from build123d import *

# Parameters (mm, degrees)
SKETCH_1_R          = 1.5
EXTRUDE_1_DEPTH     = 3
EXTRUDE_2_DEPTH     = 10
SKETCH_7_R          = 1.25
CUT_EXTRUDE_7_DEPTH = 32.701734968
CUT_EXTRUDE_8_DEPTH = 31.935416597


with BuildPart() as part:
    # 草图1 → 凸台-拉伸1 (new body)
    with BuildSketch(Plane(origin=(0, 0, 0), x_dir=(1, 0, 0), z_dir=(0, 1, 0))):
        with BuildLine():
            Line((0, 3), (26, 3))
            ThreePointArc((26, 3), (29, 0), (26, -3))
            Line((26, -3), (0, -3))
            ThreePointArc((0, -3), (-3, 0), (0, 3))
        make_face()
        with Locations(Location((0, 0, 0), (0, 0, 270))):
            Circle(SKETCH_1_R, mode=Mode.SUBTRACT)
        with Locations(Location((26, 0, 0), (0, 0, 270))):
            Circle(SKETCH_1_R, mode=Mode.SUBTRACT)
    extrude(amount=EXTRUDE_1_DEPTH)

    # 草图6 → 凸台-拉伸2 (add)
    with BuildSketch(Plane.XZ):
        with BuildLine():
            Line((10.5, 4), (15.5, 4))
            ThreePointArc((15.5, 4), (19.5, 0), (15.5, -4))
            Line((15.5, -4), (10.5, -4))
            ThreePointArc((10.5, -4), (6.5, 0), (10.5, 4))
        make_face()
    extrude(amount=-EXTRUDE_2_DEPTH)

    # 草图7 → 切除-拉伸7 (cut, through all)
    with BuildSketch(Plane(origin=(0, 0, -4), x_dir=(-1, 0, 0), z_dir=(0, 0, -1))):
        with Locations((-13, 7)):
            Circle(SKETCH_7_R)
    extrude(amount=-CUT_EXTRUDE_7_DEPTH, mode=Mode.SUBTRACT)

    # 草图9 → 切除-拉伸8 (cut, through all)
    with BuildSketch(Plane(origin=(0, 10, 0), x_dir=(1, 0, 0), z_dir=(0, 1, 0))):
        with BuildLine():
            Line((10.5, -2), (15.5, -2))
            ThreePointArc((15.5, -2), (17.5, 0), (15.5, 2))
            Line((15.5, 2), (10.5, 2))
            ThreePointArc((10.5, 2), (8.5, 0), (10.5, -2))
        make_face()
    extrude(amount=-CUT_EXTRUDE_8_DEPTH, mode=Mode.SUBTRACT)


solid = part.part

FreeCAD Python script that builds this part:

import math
import FreeCAD as App
import Part
import Sketcher

V = App.Vector

doc = App.newDocument("Part")
body = doc.addObject("PartDesign::Body", "Body")

sketch1 = doc.addObject("Sketcher::SketchObject", "Sketch")
body.addObject(sketch1)
sketch1.AttachmentSupport = (doc.XZ_Plane, [""])
sketch1.MapMode = "FlatFace"
sketch1.addGeometry(Part.LineSegment(V(26, -3, 0), V(0, -3, 0)), False)
sketch1.addGeometry(Part.ArcOfCircle(Part.Circle(V(0, 0, 0), V(0, 0, 1), 3), math.radians(90), math.radians(270)), False)
sketch1.addGeometry(Part.LineSegment(V(0, 3, 0), V(26, 3, 0)), False)
sketch1.addGeometry(Part.ArcOfCircle(Part.Circle(V(26, 0, 0), V(0, 0, 1), 3), math.radians(-90), math.radians(90)), False)
sketch1.addGeometry(Part.Circle(V(26, 0, 0), V(0, 0, 1), 1.5), False)
sketch1.addGeometry(Part.Circle(V(0, 0, 0), V(0, 0, 1), 1.5), False)
sketch1.addConstraint(Sketcher.Constraint("Tangent", 0, 2, 1, 2))
sketch1.addConstraint(Sketcher.Constraint("Tangent", 1, 1, 2, 1))
sketch1.addConstraint(Sketcher.Constraint("Tangent", 2, 2, 3, 2))
sketch1.addConstraint(Sketcher.Constraint("Tangent", 3, 1, 0, 1))
sketch1.addConstraint(Sketcher.Constraint("Horizontal", 0))
sketch1.addConstraint(Sketcher.Constraint("Horizontal", 2))
sketch1.addConstraint(Sketcher.Constraint("Coincident", 1, 3, -1, 1))
sketch1.addConstraint(Sketcher.Constraint("Coincident", 5, 3, -1, 1))
sketch1.addConstraint(Sketcher.Constraint("Coincident", 4, 3, 3, 3))
sketch1.addConstraint(Sketcher.Constraint("Equal", 4, 5))
sketch1.addConstraint(Sketcher.Constraint("Diameter", 4, 3.0))
sketch1.addConstraint(Sketcher.Constraint("Radius", 1, 3.0))
sketch1.addConstraint(Sketcher.Constraint("DistanceX", 0, 2, 0, 1, 26.0))
pad1 = doc.addObject("PartDesign::Pad", "Pad")
body.addObject(pad1)
pad1.Profile = sketch1
pad1.Length = 3
pad1.Reversed = True

sketch2 = doc.addObject("Sketcher::SketchObject", "Sketch001")
body.addObject(sketch2)
sketch2.AttachmentSupport = (doc.XZ_Plane, [""])
sketch2.MapMode = "FlatFace"
sketch2.addGeometry(Part.LineSegment(V(15.5, 4, 0), V(10.5, 4, 0)), False)
sketch2.addGeometry(Part.ArcOfCircle(Part.Circle(V(10.5, 0, 0), V(0, 0, 1), 4), math.radians(90), math.radians(270)), False)
sketch2.addGeometry(Part.LineSegment(V(10.5, -4, 0), V(15.5, -4, 0)), False)
sketch2.addGeometry(Part.ArcOfCircle(Part.Circle(V(15.5, 0, 0), V(0, 0, 1), 4), math.radians(-90), math.radians(90)), False)
sketch2.addConstraint(Sketcher.Constraint("Tangent", 0, 2, 1, 1))
sketch2.addConstraint(Sketcher.Constraint("Tangent", 1, 2, 2, 1))
sketch2.addConstraint(Sketcher.Constraint("Tangent", 2, 2, 3, 1))
sketch2.addConstraint(Sketcher.Constraint("Tangent", 3, 2, 0, 1))
sketch2.addConstraint(Sketcher.Constraint("Horizontal", 0))
sketch2.addConstraint(Sketcher.Constraint("Horizontal", 2))
sketch2.addConstraint(Sketcher.Constraint("PointOnObject", 1, 3, -1))
sketch2.addConstraint(Sketcher.Constraint("Radius", 1, 4.0))
sketch2.addConstraint(Sketcher.Constraint("DistanceX", 0, 2, 0, 1, 5.0))
sketch2.addConstraint(Sketcher.Constraint("DistanceX", -1, 1, 1, 3, 10.5))
pad2 = doc.addObject("PartDesign::Pad", "Pad001")
body.addObject(pad2)
pad2.Profile = sketch2
pad2.Length = 10
pad2.Reversed = True

sketch3 = doc.addObject("Sketcher::SketchObject", "Sketch002")
body.addObject(sketch3)
sketch3.AttachmentSupport = (doc.XY_Plane, [""])
sketch3.MapMode = "FlatFace"
sketch3.AttachmentOffset = App.Placement(V(0, 0, -4), App.Rotation())
sketch3.addGeometry(Part.Circle(V(13, 7, 0), V(0, 0, 1), 1.2), False)
sketch3.addConstraint(Sketcher.Constraint("Diameter", 0, 2.5))
sketch3.addConstraint(Sketcher.Constraint("DistanceX", -1, 1, 0, 3, 13.0))
sketch3.addConstraint(Sketcher.Constraint("DistanceY", -1, 1, 0, 3, 7.0))
pocket1 = doc.addObject("PartDesign::Pocket", "Pocket")
body.addObject(pocket1)
pocket1.Profile = sketch3
pocket1.Type = "ThroughAll"
pocket1.Reversed = True

sketch4 = doc.addObject("Sketcher::SketchObject", "Sketch003")
body.addObject(sketch4)
sketch4.AttachmentSupport = (doc.XZ_Plane, [""])
sketch4.MapMode = "FlatFace"
sketch4.AttachmentOffset = App.Placement(V(0, 0, -10), App.Rotation())
sketch4.addGeometry(Part.LineSegment(V(10.5, 2, 0), V(15.5, 2, 0)), False)
sketch4.addGeometry(Part.ArcOfCircle(Part.Circle(V(15.5, 0, 0), V(0, 0, 1), 2), math.radians(-90), math.radians(90)), False)
sketch4.addGeometry(Part.LineSegment(V(15.5, -2, 0), V(10.5, -2, 0)), False)
sketch4.addGeometry(Part.ArcOfCircle(Part.Circle(V(10.5, 0, 0), V(0, 0, 1), 2), math.radians(90), math.radians(270)), False)
sketch4.addConstraint(Sketcher.Constraint("Tangent", 0, 2, 1, 2))
sketch4.addConstraint(Sketcher.Constraint("Tangent", 1, 1, 2, 1))
sketch4.addConstraint(Sketcher.Constraint("Tangent", 2, 2, 3, 2))
sketch4.addConstraint(Sketcher.Constraint("Tangent", 3, 1, 0, 1))
sketch4.addConstraint(Sketcher.Constraint("Horizontal", 0))
sketch4.addConstraint(Sketcher.Constraint("Horizontal", 2))
sketch4.addConstraint(Sketcher.Constraint("PointOnObject", 1, 3, -1))
sketch4.addConstraint(Sketcher.Constraint("Radius", 1, 2.0))
sketch4.addConstraint(Sketcher.Constraint("DistanceX", 0, 1, 0, 2, 5.0))
sketch4.addConstraint(Sketcher.Constraint("DistanceX", -1, 1, 1, 3, 15.5))
pocket2 = doc.addObject("PartDesign::Pocket", "Pocket001")
body.addObject(pocket2)
pocket2.Profile = sketch4
pocket2.Type = "ThroughAll"
pocket2.Reversed = True

doc.recompute()
